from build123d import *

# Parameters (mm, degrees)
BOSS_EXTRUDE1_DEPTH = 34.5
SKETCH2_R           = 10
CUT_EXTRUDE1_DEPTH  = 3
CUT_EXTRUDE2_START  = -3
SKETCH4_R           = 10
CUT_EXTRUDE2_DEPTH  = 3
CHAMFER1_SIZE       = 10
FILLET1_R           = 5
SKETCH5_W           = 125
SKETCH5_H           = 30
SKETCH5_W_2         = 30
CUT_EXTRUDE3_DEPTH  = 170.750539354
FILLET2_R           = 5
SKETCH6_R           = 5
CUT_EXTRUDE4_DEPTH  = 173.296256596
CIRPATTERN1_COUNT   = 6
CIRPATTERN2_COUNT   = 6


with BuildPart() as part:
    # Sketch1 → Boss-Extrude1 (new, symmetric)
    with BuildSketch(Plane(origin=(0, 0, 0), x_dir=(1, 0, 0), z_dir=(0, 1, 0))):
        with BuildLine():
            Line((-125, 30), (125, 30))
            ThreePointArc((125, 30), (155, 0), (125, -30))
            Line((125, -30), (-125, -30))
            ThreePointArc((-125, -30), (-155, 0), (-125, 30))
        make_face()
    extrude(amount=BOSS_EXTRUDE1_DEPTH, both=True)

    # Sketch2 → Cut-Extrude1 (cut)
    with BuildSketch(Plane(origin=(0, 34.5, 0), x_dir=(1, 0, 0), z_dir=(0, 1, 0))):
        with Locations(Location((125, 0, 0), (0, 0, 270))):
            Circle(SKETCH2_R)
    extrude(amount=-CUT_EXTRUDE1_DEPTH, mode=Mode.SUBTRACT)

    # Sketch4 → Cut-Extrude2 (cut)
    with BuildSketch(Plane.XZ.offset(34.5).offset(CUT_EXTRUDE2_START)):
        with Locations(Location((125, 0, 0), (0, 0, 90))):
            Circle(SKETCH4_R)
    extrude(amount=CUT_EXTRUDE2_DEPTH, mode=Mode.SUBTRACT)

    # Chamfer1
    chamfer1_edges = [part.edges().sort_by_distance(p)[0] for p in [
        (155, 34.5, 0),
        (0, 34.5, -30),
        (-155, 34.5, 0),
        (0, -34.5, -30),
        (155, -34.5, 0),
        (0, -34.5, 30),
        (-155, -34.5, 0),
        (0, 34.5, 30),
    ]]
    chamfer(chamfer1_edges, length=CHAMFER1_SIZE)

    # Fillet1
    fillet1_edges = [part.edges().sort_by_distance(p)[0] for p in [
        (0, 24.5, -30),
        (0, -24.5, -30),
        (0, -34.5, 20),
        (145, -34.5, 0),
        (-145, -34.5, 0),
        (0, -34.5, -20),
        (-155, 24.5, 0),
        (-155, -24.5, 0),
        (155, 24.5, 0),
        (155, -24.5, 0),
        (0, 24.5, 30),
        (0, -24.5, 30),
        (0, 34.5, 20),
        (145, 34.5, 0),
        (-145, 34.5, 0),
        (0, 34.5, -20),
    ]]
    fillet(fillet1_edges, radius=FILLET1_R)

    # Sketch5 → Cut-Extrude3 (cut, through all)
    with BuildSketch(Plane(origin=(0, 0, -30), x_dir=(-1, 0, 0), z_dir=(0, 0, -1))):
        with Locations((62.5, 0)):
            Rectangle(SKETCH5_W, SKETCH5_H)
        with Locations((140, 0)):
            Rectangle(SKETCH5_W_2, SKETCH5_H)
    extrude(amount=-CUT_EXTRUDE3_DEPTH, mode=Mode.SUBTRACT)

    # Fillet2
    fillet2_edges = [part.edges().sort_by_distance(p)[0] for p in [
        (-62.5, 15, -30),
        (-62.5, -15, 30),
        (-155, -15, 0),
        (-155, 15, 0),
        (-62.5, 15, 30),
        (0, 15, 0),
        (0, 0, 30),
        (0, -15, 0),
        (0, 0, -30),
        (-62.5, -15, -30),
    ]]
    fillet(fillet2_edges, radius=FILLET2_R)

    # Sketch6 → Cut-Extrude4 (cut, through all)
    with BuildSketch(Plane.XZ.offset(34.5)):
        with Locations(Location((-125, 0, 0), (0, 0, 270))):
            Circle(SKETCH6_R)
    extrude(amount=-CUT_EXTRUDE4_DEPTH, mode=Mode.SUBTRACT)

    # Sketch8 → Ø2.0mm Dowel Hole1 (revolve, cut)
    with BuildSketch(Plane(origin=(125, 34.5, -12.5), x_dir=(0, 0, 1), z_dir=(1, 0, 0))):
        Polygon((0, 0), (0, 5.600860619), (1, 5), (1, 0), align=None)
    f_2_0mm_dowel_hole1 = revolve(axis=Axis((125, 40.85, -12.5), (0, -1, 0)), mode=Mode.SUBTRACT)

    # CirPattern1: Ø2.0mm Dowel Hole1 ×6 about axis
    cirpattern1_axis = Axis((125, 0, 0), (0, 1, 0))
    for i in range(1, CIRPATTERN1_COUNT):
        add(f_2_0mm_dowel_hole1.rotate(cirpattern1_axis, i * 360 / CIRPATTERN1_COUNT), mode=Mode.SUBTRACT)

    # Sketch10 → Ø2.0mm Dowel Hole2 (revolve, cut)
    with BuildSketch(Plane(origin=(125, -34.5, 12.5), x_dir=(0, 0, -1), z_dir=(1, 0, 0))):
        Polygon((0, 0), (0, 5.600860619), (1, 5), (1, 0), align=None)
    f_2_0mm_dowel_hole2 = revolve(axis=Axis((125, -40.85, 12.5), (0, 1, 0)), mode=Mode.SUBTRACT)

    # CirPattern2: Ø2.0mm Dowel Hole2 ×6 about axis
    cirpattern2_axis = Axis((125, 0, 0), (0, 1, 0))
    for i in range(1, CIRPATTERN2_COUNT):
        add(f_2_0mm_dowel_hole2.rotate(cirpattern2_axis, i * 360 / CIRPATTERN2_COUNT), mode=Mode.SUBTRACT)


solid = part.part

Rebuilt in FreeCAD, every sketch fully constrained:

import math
import FreeCAD as App
import Part
import Sketcher

V = App.Vector
Q = App.Units.Quantity


def edges_at(feature, points):
    """Names of the edges that pass closest to the given points."""
    edges = feature.Shape.Edges
    near = lambda p: min(range(len(edges)), key=lambda i: edges[i].distToShape(Part.Vertex(*p))[0])
    return sorted({f"Edge{near(p) + 1}" for p in points})


def add_polygon(sketch, points):
    """Adds a closed chain of lines whose ends are joined by coincident constraints."""
    first, n = sketch.GeometryCount, len(points)
    for a, b in zip(points, points[1:] + points[:1]):
        sketch.addGeometry(Part.LineSegment(App.Vector(*a, 0), App.Vector(*b, 0)), False)
    for i in range(n):
        sketch.addConstraint(Sketcher.Constraint("Coincident", first + i, 2, first + (i + 1) % n, 1))

doc = App.newDocument("Part")
body = doc.addObject("PartDesign::Body", "Body")

sketch1 = body.newObject("Sketcher::SketchObject", "Sketch")
sketch1.AttachmentSupport = (doc.getObject("XZ_Plane"), [""])
sketch1.MapMode = "FlatFace"
sketch1.addGeometry(Part.LineSegment(V(125, -30, 0), V(-125, -30, 0)), False)
sketch1.addGeometry(Part.ArcOfCircle(Part.Circle(V(-125, 0, 0), V(0, 0, 1), 30), math.radians(90), math.radians(270)), False)
sketch1.addGeometry(Part.LineSegment(V(-125, 30, 0), V(125, 30, 0)), False)
sketch1.addGeometry(Part.ArcOfCircle(Part.Circle(V(125, 0, 0), V(0, 0, 1), 30), math.radians(-90), math.radians(90)), False)
sketch1.addConstraint(Sketcher.Constraint("Tangent", 0, 2, 1, 2))
sketch1.addConstraint(Sketcher.Constraint("Tangent", 1, 1, 2, 1))
sketch1.addConstraint(Sketcher.Constraint("Tangent", 2, 2, 3, 2))
sketch1.addConstraint(Sketcher.Constraint("Tangent", 3, 1, 0, 1))
sketch1.addConstraint(Sketcher.Constraint("Horizontal", 0))
sketch1.addConstraint(Sketcher.Constraint("Horizontal", 2))
sketch1.addConstraint(Sketcher.Constraint("Symmetric", 1, 3, 3, 3, -1, 1))
sketch1.addConstraint(Sketcher.Constraint("Radius", 1, Q("30 mm")))
sketch1.addConstraint(Sketcher.Constraint("DistanceX", 0, 2, 0, 1, Q("250 mm")))
pad1 = body.newObject("PartDesign::Pad", "Pad")
pad1.Profile = sketch1
pad1.Length = 69
pad1.Midplane = True

sketch2 = body.newObject("Sketcher::SketchObject", "Sketch001")
sketch2.AttachmentSupport = (doc.getObject("XZ_Plane"), [""])
sketch2.MapMode = "FlatFace"
sketch2.AttachmentOffset = App.Placement(V(0, 0, -34.5), App.Rotation())
sketch2.addGeometry(Part.Circle(V(125, 0, 0), V(0, 0, 1), 10), False)
sketch2.addConstraint(Sketcher.Constraint("PointOnObject", 0, 3, -1))
sketch2.addConstraint(Sketcher.Constraint("Diameter", 0, Q("20 mm")))
sketch2.addConstraint(Sketcher.Constraint("DistanceX", -1, 1, 0, 3, Q("125 mm")))
pocket1 = body.newObject("PartDesign::Pocket", "Pocket")
pocket1.Profile = sketch2
pocket1.Length = 3
pocket1.Reversed = True

sketch3 = body.newObject("Sketcher::SketchObject", "Sketch002")
sketch3.AttachmentSupport = (doc.getObject("XZ_Plane"), [""])
sketch3.MapMode = "FlatFace"
sketch3.AttachmentOffset = App.Placement(V(0, 0, 31.5), App.Rotation())
sketch3.addGeometry(Part.Circle(V(125, 0, 0), V(0, 0, 1), 10), False)
sketch3.addConstraint(Sketcher.Constraint("PointOnObject", 0, 3, -1))
sketch3.addConstraint(Sketcher.Constraint("Diameter", 0, Q("20 mm")))
sketch3.addConstraint(Sketcher.Constraint("DistanceX", -1, 1, 0, 3, Q("125 mm")))
pocket2 = body.newObject("PartDesign::Pocket", "Pocket001")
pocket2.Profile = sketch3
pocket2.Length = 3
pocket2.Reversed = True
doc.recompute()

chamfer = body.newObject("PartDesign::Chamfer", "Chamfer")
chamfer.Base = (pocket2, edges_at(pocket2, [
    (155, 34.5, 0),
    (0, 34.5, -30),
    (-155, 34.5, 0),
    (0, -34.5, -30),
    (155, -34.5, 0),
    (0, -34.5, 30),
    (-155, -34.5, 0),
    (0, 34.5, 30),
]))
chamfer.Size = 10
doc.recompute()

fillet = body.newObject("PartDesign::Fillet", "Fillet")
fillet.Base = (chamfer, edges_at(chamfer, [
    (0, 24.5, -30),
    (0, -24.5, -30),
    (0, -34.5, 20),
    (145, -34.5, 0),
    (-145, -34.5, 0),
    (0, -34.5, -20),
    (-155, 24.5, 0),
    (-155, -24.5, 0),
    (155, 24.5, 0),
    (155, -24.5, 0),
    (0, 24.5, 30),
    (0, -24.5, 30),
    (0, 34.5, 20),
    (145, 34.5, 0),
    (-145, 34.5, 0),
    (0, 34.5, -20),
]))
fillet.Radius = 5

sketch4 = body.newObject("Sketcher::SketchObject", "Sketch003")
sketch4.AttachmentSupport = (doc.getObject("XY_Plane"), [""])
sketch4.MapMode = "FlatFace"
sketch4.AttachmentOffset = App.Placement(V(0, 0, -30), App.Rotation())
add_polygon(sketch4, [(0, 15), (0, -15), (-155, -15), (-155, 15)])
sketch4.addConstraint(Sketcher.Constraint("Vertical", 0))
sketch4.addConstraint(Sketcher.Constraint("Horizontal", 1))
sketch4.addConstraint(Sketcher.Constraint("Vertical", 2))
sketch4.addConstraint(Sketcher.Constraint("Horizontal", 3))
sketch4.addConstraint(Sketcher.Constraint("Symmetric", 0, 2, 3, 2, -1, 1))
sketch4.addConstraint(Sketcher.Constraint("DistanceX", 1, 2, 1, 1, Q("155 mm")))
sketch4.addConstraint(Sketcher.Constraint("DistanceY", 0, 2, 0, 1, Q("30 mm")))
pocket3 = body.newObject("PartDesign::Pocket", "Pocket002")
pocket3.Profile = sketch4
pocket3.Type = "ThroughAll"
pocket3.Reversed = True
doc.recompute()

fillet2 = body.newObject("PartDesign::Fillet", "Fillet001")
fillet2.Base = (pocket3, edges_at(pocket3, [
    (-62.5, 15, -30),
    (-62.5, -15, 30),
    (-155, -15, 0),
    (-155, 15, 0),
    (-62.5, 15, 30),
    (0, 15, 0),
    (0, 0, 30),
    (0, -15, 0),
    (0, 0, -30),
    (-62.5, -15, -30),
]))
fillet2.Radius = 5

sketch5 = body.newObject("Sketcher::SketchObject", "Sketch004")
sketch5.AttachmentSupport = (doc.getObject("XZ_Plane"), [""])
sketch5.MapMode = "FlatFace"
sketch5.AttachmentOffset = App.Placement(V(0, 0, 34.5), App.Rotation())
sketch5.addGeometry(Part.Circle(V(-125, 0, 0), V(0, 0, 1), 5), False)
sketch5.addConstraint(Sketcher.Constraint("PointOnObject", 0, 3, -1))
sketch5.addConstraint(Sketcher.Constraint("Diameter", 0, Q("10 mm")))
sketch5.addConstraint(Sketcher.Constraint("DistanceX", 0, 3, -1, 1, Q("125 mm")))
pocket4 = body.newObject("PartDesign::Pocket", "Pocket003")
pocket4.Profile = sketch5
pocket4.Type = "ThroughAll"

sketch6 = body.newObject("Sketcher::SketchObject", "Sketch005")
sketch6.AttachmentSupport = (doc.getObject("YZ_Plane"), [""])
sketch6.MapMode = "FlatFace"
sketch6.AttachmentOffset = App.Placement(V(0, 0, 125), App.Rotation())
add_polygon(sketch6, [(28.9, -12.5), (34.5, -12.5), (34.5, -11.5), (29.5, -11.5)])
sketch6.addGeometry(Part.LineSegment(V(34.5, -12.5, 0), V(28.9, -12.5, 0)), True)
sketch6.addConstraint(Sketcher.Constraint("Horizontal", 0))
sketch6.addConstraint(Sketcher.Constraint("Vertical", 1))
sketch6.addConstraint(Sketcher.Constraint("Horizontal", 2))
sketch6.addConstraint(Sketcher.Constraint("Horizontal", 4))
sketch6.addConstraint(Sketcher.Constraint("Coincident", 4, 1, 0, 2))
sketch6.addConstraint(Sketcher.Constraint("Equal", 0, 4))
sketch6.addConstraint(Sketcher.Constraint("DistanceX", 2, 2, 2, 1, Q("5 mm")))
sketch6.addConstraint(Sketcher.Constraint("DistanceY", 1, 1, 1, 2, Q("1 mm")))
sketch6.addConstraint(Sketcher.Constraint("Angle", 3, Q("-121 deg")))
sketch6.addConstraint(Sketcher.Constraint("DistanceX", -1, 1, 0, 2, Q("34.5 mm")))
sketch6.addConstraint(Sketcher.Constraint("DistanceY", 0, 2, -1, 1, Q("12.5 mm")))
groove = body.newObject("PartDesign::Groove", "Groove")
groove.Profile = sketch6
groove.ReferenceAxis = (sketch6, ["Axis0"])
groove.Angle = 360
doc.recompute()

datumline = body.newObject("PartDesign::Line", "DatumLine")
datumline.Placement = App.Placement(V(125, 0, 0), App.Rotation(V(0, 0, 1), V(0, 1, 0)))
polarpattern = body.newObject("PartDesign::PolarPattern", "PolarPattern")
polarpattern.Originals = [groove]
polarpattern.Axis = (datumline, [""])
polarpattern.Angle = 360
polarpattern.Occurrences = 6
body.Tip = polarpattern

sketch7 = body.newObject("Sketcher::SketchObject", "Sketch006")
sketch7.AttachmentSupport = (doc.getObject("YZ_Plane"), [""])
sketch7.MapMode = "FlatFace"
sketch7.AttachmentOffset = App.Placement(V(0, 0, 125), App.Rotation())
add_polygon(sketch7, [(-28.9, 12.5), (-34.5, 12.5), (-34.5, 11.5), (-29.5, 11.5)])
sketch7.addGeometry(Part.LineSegment(V(-34.5, 12.5, 0), V(-28.9, 12.5, 0)), True)
sketch7.addConstraint(Sketcher.Constraint("Horizontal", 0))
sketch7.addConstraint(Sketcher.Constraint("Vertical", 1))
sketch7.addConstraint(Sketcher.Constraint("Horizontal", 2))
sketch7.addConstraint(Sketcher.Constraint("Horizontal", 4))
sketch7.addConstraint(Sketcher.Constraint("Coincident", 4, 1, 0, 2))
sketch7.addConstraint(Sketcher.Constraint("Equal", 0, 4))
sketch7.addConstraint(Sketcher.Constraint("DistanceX", 2, 1, 2, 2, Q("5 mm")))
sketch7.addConstraint(Sketcher.Constraint("DistanceY", 1, 2, 1, 1, Q("1 mm")))
sketch7.addConstraint(Sketcher.Constraint("Angle", 3, Q("59 deg")))
sketch7.addConstraint(Sketcher.Constraint("DistanceX", 0, 2, -1, 1, Q("34.5 mm")))
sketch7.addConstraint(Sketcher.Constraint("DistanceY", -1, 1, 0, 2, Q("12.5 mm")))
groove2 = body.newObject("PartDesign::Groove", "Groove001")
groove2.Profile = sketch7
groove2.ReferenceAxis = (sketch7, ["Axis0"])
groove2.Angle = 360
doc.recompute()

datumline2 = body.newObject("PartDesign::Line", "DatumLine001")
datumline2.Placement = App.Placement(V(125, 0, 0), App.Rotation(V(0, 0, 1), V(0, 1, 0)))
polarpattern2 = body.newObject("PartDesign::PolarPattern", "PolarPattern001")
polarpattern2.Originals = [groove2]
polarpattern2.Axis = (datumline2, [""])
polarpattern2.Angle = 360
polarpattern2.Occurrences = 6
body.Tip = polarpattern2

doc.recompute()
